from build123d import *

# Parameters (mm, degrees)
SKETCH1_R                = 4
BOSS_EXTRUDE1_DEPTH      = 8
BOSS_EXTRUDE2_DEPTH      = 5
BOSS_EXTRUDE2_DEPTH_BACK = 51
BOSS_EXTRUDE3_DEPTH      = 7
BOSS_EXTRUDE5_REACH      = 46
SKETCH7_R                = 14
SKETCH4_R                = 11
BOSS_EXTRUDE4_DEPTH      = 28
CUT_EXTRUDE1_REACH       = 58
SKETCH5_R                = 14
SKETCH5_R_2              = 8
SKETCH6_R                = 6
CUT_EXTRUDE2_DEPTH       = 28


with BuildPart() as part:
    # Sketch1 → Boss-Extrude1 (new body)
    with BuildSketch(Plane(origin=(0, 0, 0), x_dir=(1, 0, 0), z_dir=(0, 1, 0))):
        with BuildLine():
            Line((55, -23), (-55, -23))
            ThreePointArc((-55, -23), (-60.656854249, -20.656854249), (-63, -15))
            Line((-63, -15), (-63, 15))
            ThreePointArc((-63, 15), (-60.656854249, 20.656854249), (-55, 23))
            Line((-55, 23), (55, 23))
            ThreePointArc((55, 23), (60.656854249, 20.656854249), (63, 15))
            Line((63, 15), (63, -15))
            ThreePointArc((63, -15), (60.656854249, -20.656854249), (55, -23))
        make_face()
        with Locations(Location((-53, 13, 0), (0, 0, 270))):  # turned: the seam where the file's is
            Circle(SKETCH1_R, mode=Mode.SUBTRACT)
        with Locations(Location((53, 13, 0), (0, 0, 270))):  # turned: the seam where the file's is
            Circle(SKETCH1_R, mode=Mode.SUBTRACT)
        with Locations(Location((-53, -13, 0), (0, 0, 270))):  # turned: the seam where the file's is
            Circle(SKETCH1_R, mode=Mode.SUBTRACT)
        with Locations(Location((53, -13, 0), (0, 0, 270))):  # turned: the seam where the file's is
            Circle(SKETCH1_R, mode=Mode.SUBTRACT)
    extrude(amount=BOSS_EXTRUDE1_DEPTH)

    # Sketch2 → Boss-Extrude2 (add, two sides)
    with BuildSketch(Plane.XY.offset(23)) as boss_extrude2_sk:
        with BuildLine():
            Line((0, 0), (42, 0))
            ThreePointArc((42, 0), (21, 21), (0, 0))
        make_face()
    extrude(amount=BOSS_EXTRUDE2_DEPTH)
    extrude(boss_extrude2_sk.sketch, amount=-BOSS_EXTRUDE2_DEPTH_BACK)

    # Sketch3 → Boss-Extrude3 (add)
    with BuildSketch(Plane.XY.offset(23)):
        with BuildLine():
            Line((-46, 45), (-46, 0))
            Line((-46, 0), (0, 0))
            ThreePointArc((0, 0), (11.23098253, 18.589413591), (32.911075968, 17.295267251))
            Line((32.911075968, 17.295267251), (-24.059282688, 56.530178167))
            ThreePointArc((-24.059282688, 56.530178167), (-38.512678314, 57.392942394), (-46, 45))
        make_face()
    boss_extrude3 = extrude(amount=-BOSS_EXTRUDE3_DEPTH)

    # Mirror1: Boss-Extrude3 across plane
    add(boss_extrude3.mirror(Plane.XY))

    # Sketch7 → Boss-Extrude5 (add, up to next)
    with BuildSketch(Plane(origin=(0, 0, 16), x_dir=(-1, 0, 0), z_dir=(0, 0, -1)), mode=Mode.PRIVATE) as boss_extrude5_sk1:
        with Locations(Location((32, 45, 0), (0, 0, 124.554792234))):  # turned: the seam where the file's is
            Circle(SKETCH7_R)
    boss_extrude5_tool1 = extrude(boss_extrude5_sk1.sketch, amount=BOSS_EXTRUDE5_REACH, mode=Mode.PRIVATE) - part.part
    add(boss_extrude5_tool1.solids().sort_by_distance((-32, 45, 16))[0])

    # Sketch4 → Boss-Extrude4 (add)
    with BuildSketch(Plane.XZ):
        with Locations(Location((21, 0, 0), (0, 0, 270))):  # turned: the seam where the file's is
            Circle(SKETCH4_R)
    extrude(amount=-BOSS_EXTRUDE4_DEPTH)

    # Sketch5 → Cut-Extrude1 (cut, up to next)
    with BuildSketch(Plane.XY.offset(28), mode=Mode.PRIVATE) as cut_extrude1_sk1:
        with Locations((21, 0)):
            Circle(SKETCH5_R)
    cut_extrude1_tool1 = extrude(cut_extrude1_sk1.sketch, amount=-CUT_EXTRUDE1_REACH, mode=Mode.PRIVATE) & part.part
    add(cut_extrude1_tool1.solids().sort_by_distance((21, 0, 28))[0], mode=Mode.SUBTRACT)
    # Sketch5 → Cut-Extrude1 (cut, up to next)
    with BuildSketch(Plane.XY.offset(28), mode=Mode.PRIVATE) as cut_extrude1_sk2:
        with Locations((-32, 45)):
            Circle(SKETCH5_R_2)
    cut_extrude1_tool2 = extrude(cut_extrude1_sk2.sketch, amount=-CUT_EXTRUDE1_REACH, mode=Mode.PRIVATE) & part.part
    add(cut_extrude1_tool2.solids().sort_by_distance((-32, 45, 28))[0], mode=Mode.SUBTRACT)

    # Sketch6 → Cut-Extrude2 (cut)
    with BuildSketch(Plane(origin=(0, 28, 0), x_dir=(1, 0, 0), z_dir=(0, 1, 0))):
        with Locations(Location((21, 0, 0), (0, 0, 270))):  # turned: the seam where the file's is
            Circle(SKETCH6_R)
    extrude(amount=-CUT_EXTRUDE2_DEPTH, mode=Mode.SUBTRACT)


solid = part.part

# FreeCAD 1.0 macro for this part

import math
import FreeCAD as App
import Part
import Sketcher

doc = App.newDocument("Part")
body = doc.addObject("PartDesign::Body", "Body")

# Sketch on XZ plane
sketch1 = doc.addObject("Sketcher::SketchObject", "Sketch")
body.addObject(sketch1)
sketch1.AttachmentSupport = (doc.XZ_Plane, [""])
sketch1.MapMode = "FlatFace"
sketch1.addGeometry(Part.LineSegment(App.Vector(-55, 23, 0), App.Vector(55, 23, 0)), False)
sketch1.addGeometry(Part.ArcOfCircle(Part.Circle(App.Vector(55, 15, 0), App.Vector(0, 0, 1), 8), math.radians(0), math.radians(90)), False)
sketch1.addGeometry(Part.LineSegment(App.Vector(63, 15, 0), App.Vector(63, -15, 0)), False)
sketch1.addGeometry(Part.ArcOfCircle(Part.Circle(App.Vector(55, -15, 0), App.Vector(0, 0, 1), 8), math.radians(-90), math.radians(0)), False)
sketch1.addGeometry(Part.LineSegment(App.Vector(55, -23, 0), App.Vector(-55, -23, 0)), False)
sketch1.addGeometry(Part.ArcOfCircle(Part.Circle(App.Vector(-55, -15, 0), App.Vector(0, 0, 1), 8), math.radians(-180), math.radians(-90)), False)
sketch1.addGeometry(Part.LineSegment(App.Vector(-63, -15, 0), App.Vector(-63, 15, 0)), False)
sketch1.addGeometry(Part.ArcOfCircle(Part.Circle(App.Vector(-55, 15, 0), App.Vector(0, 0, 1), 8), math.radians(90), math.radians(180)), False)
sketch1.addGeometry(Part.Circle(App.Vector(53, 13, 0), App.Vector(0, 0, 1), 4), False)
sketch1.addGeometry(Part.Circle(App.Vector(-53, 13, 0), App.Vector(0, 0, 1), 4), False)
sketch1.addGeometry(Part.Circle(App.Vector(53, -13, 0), App.Vector(0, 0, 1), 4), False)
sketch1.addGeometry(Part.Circle(App.Vector(-53, -13, 0), App.Vector(0, 0, 1), 4), False)
sketch1.addConstraint(Sketcher.Constraint("Tangent", 0, 2, 1, 2))
sketch1.addConstraint(Sketcher.Constraint("Tangent", 1, 1, 2, 1))
sketch1.addConstraint(Sketcher.Constraint("Tangent", 2, 2, 3, 2))
sketch1.addConstraint(Sketcher.Constraint("Tangent", 3, 1, 4, 1))
sketch1.addConstraint(Sketcher.Constraint("Tangent", 4, 2, 5, 2))
sketch1.addConstraint(Sketcher.Constraint("Tangent", 5, 1, 6, 1))
sketch1.addConstraint(Sketcher.Constraint("Tangent", 6, 2, 7, 2))
sketch1.addConstraint(Sketcher.Constraint("Tangent", 7, 1, 0, 1))
sketch1.addConstraint(Sketcher.Constraint("Horizontal", 0))
sketch1.addConstraint(Sketcher.Constraint("Vertical", 2))
sketch1.addConstraint(Sketcher.Constraint("Horizontal", 4))
sketch1.addConstraint(Sketcher.Constraint("Vertical", 6))
sketch1.addConstraint(Sketcher.Constraint("Equal", 1, 3))
sketch1.addConstraint(Sketcher.Constraint("Equal", 3, 5))
sketch1.addConstraint(Sketcher.Constraint("Equal", 5, 7))
sketch1.addConstraint(Sketcher.Constraint("Equal", 8, 9))
sketch1.addConstraint(Sketcher.Constraint("Equal", 9, 10))
sketch1.addConstraint(Sketcher.Constraint("Equal", 10, 11))
sketch1.addConstraint(Sketcher.Constraint("Symmetric", 1, 3, 5, 3, -1, 1))
sketch1.addConstraint(Sketcher.Constraint("Symmetric", 9, 3, 10, 3, -1, 1))
sketch1.addConstraint(Sketcher.Constraint("Symmetric", 8, 3, 11, 3, -1, 1))
sketch1.addConstraint(Sketcher.Constraint("Symmetric", 8, 3, 9, 3, -2))
sketch1.addConstraint(Sketcher.Constraint("Diameter", 8, 8.0))
sketch1.addConstraint(Sketcher.Constraint("Radius", 1, 8.0))
sketch1.addConstraint(Sketcher.Constraint("DistanceX", 0, 1, 0, 2, 110.0))
sketch1.addConstraint(Sketcher.Constraint("DistanceY", 2, 2, 2, 1, 30.0))
sketch1.addConstraint(Sketcher.Constraint("DistanceX", -1, 1, 8, 3, 53.0))
sketch1.addConstraint(Sketcher.Constraint("DistanceY", -1, 1, 8, 3, 13.0))
pad1 = doc.addObject("PartDesign::Pad", "Pad")
body.addObject(pad1)
pad1.Profile = sketch1
pad1.Length = 8
pad1.Reversed = True

# Sketch on XY plane
sketch2 = doc.addObject("Sketcher::SketchObject", "Sketch001")
body.addObject(sketch2)
sketch2.AttachmentSupport = (doc.XY_Plane, [""])
sketch2.MapMode = "FlatFace"
sketch2.AttachmentOffset = App.Placement(App.Vector(0, 0, 23), App.Rotation())
sketch2.addGeometry(Part.LineSegment(App.Vector(0, 0, 0), App.Vector(42, 0, 0)), False)
sketch2.addGeometry(Part.ArcOfCircle(Part.Circle(App.Vector(21, 0, 0), App.Vector(0, 0, 1), 21), math.radians(0), math.radians(180)), False)
sketch2.addConstraint(Sketcher.Constraint("Coincident", 0, 1, 1, 2))
sketch2.addConstraint(Sketcher.Constraint("Coincident", 1, 1, 0, 2))
sketch2.addConstraint(Sketcher.Constraint("Horizontal", 0))
sketch2.addConstraint(Sketcher.Constraint("Coincident", 0, 1, -1, 1))
sketch2.addConstraint(Sketcher.Constraint("PointOnObject", 1, 3, -1))
sketch2.addConstraint(Sketcher.Constraint("Radius", 1, 21.0))
pad2 = doc.addObject("PartDesign::Pad", "Pad001")
body.addObject(pad2)
pad2.Profile = sketch2
pad2.Type = "TwoLengths"
pad2.Length = 5
pad2.Length2 = 51

# Sketch on XY plane
sketch3 = doc.addObject("Sketcher::SketchObject", "Sketch002")
body.addObject(sketch3)
sketch3.AttachmentSupport = (doc.XY_Plane, [""])
sketch3.MapMode = "FlatFace"
sketch3.AttachmentOffset = App.Placement(App.Vector(0, 0, 23), App.Rotation())
sketch3.addGeometry(Part.LineSegment(App.Vector(-46, 45, 0), App.Vector(-46, 0, 0)), False)
sketch3.addGeometry(Part.LineSegment(App.Vector(-46, 0, 0), App.Vector(0, 0, 0)), False)
sketch3.addGeometry(Part.ArcOfCircle(Part.Circle(App.Vector(21, 0, 0), App.Vector(0, 0, 1), 21), math.radians(55.445208), math.radians(180)), False)
sketch3.addGeometry(Part.LineSegment(App.Vector(32.911076, 17.295267, 0), App.Vector(-24.059283, 56.530178, 0)), False)
sketch3.addGeometry(Part.ArcOfCircle(Part.Circle(App.Vector(-32, 45, 0), App.Vector(0, 0, 1), 14), math.radians(55.445208), math.radians(180)), False)
sketch3.addConstraint(Sketcher.Constraint("Coincident", 0, 2, 1, 1))
sketch3.addConstraint(Sketcher.Constraint("Coincident", 1, 2, 2, 2))
sketch3.addConstraint(Sketcher.Constraint("Tangent", 2, 1, 3, 1))
sketch3.addConstraint(Sketcher.Constraint("Tangent", 3, 2, 4, 1))
sketch3.addConstraint(Sketcher.Constraint("Tangent", 4, 2, 0, 1))
sketch3.addConstraint(Sketcher.Constraint("Vertical", 0))
sketch3.addConstraint(Sketcher.Constraint("Horizontal", 1))
sketch3.addConstraint(Sketcher.Constraint("Coincident", 1, 2, -1, 1))
sketch3.addConstraint(Sketcher.Constraint("PointOnObject", 2, 3, -1))
sketch3.addConstraint(Sketcher.Constraint("Radius", 2, 21.0))
sketch3.addConstraint(Sketcher.Constraint("Radius", 4, 14.0))
sketch3.addConstraint(Sketcher.Constraint("DistanceX", 1, 1, 1, 2, 46.0))
sketch3.addConstraint(Sketcher.Constraint("DistanceY", 0, 2, 0, 1, 45.0))
pad3 = doc.addObject("PartDesign::Pad", "Pad002")
body.addObject(pad3)
pad3.Profile = sketch3
pad3.Length = 7
pad3.Reversed = True
doc.recompute()

mirrored = doc.addObject("PartDesign::Mirrored", "Mirrored")
body.addObject(mirrored)
mirrored.Originals = [pad3]
mirrored.MirrorPlane = (doc.XY_Plane, [""])
body.Tip = mirrored

# Sketch on XY plane
sketch4 = doc.addObject("Sketcher::SketchObject", "Sketch003")
body.addObject(sketch4)
sketch4.AttachmentSupport = (doc.XY_Plane, [""])
sketch4.MapMode = "FlatFace"
sketch4.AttachmentOffset = App.Placement(App.Vector(0, 0, 16), App.Rotation())
sketch4.addGeometry(Part.Circle(App.Vector(-32, 45, 0), App.Vector(0, 0, 1), 14), False)
sketch4.addConstraint(Sketcher.Constraint("Diameter", 0, 28.0))
sketch4.addConstraint(Sketcher.Constraint("DistanceX", 0, 3, -1, 1, 32.0))
sketch4.addConstraint(Sketcher.Constraint("DistanceY", -1, 1, 0, 3, 45.0))
pad4 = doc.addObject("PartDesign::Pad", "Pad003")
body.addObject(pad4)
pad4.Profile = sketch4
pad4.Type = "UpToFirst"
pad4.Reversed = True

# Sketch on XZ plane
sketch5 = doc.addObject("Sketcher::SketchObject", "Sketch004")
body.addObject(sketch5)
sketch5.AttachmentSupport = (doc.XZ_Plane, [""])
sketch5.MapMode = "FlatFace"
sketch5.addGeometry(Part.Circle(App.Vector(21, 0, 0), App.Vector(0, 0, 1), 11), False)
sketch5.addConstraint(Sketcher.Constraint("PointOnObject", 0, 3, -1))
sketch5.addConstraint(Sketcher.Constraint("Diameter", 0, 22.0))
sketch5.addConstraint(Sketcher.Constraint("DistanceX", -1, 1, 0, 3, 21.0))
pad5 = doc.addObject("PartDesign::Pad", "Pad004")
body.addObject(pad5)
pad5.Profile = sketch5
pad5.Length = 28
pad5.Reversed = True

# Sketch on XY plane
sketch6 = doc.addObject("Sketcher::SketchObject", "Sketch005")
body.addObject(sketch6)
sketch6.AttachmentSupport = (doc.XY_Plane, [""])
sketch6.MapMode = "FlatFace"
sketch6.AttachmentOffset = App.Placement(App.Vector(0, 0, 28), App.Rotation())
sketch6.addGeometry(Part.Circle(App.Vector(21, 0, 0), App.Vector(0, 0, 1), 14), False)
sketch6.addConstraint(Sketcher.Constraint("PointOnObject", 0, 3, -1))
sketch6.addConstraint(Sketcher.Constraint("Diameter", 0, 28.0))
sketch6.addConstraint(Sketcher.Constraint("DistanceX", -1, 1, 0, 3, 21.0))
pocket1 = doc.addObject("PartDesign::Pocket", "Pocket")
body.addObject(pocket1)
pocket1.Profile = sketch6
pocket1.Type = "UpToFirst"

# Sketch on XY plane
sketch7 = doc.addObject("Sketcher::SketchObject", "Sketch006")
body.addObject(sketch7)
sketch7.AttachmentSupport = (doc.XY_Plane, [""])
sketch7.MapMode = "FlatFace"
sketch7.AttachmentOffset = App.Placement(App.Vector(0, 0, 28), App.Rotation())
sketch7.addGeometry(Part.Circle(App.Vector(-32, 45, 0), App.Vector(0, 0, 1), 8), False)
sketch7.addConstraint(Sketcher.Constraint("Diameter", 0, 16.0))
sketch7.addConstraint(Sketcher.Constraint("DistanceX", 0, 3, -1, 1, 32.0))
sketch7.addConstraint(Sketcher.Constraint("DistanceY", -1, 1, 0, 3, 45.0))
pocket2 = doc.addObject("PartDesign::Pocket", "Pocket001")
body.addObject(pocket2)
pocket2.Profile = sketch7
pocket2.Length = 51

# Sketch on XZ plane
sketch8 = doc.addObject("Sketcher::SketchObject", "Sketch007")
body.addObject(sketch8)
sketch8.AttachmentSupport = (doc.XZ_Plane, [""])
sketch8.MapMode = "FlatFace"
sketch8.AttachmentOffset = App.Placement(App.Vector(0, 0, -28), App.Rotation())
sketch8.addGeometry(Part.Circle(App.Vector(21, 0, 0), App.Vector(0, 0, 1), 6), False)
sketch8.addConstraint(Sketcher.Constraint("PointOnObject", 0, 3, -1))
sketch8.addConstraint(Sketcher.Constraint("Diameter", 0, 12.0))
sketch8.addConstraint(Sketcher.Constraint("DistanceX", -1, 1, 0, 3, 21.0))
pocket3 = doc.addObject("PartDesign::Pocket", "Pocket002")
body.addObject(pocket3)
pocket3.Profile = sketch8
pocket3.Length = 28
pocket3.Reversed = True

doc.recompute()
